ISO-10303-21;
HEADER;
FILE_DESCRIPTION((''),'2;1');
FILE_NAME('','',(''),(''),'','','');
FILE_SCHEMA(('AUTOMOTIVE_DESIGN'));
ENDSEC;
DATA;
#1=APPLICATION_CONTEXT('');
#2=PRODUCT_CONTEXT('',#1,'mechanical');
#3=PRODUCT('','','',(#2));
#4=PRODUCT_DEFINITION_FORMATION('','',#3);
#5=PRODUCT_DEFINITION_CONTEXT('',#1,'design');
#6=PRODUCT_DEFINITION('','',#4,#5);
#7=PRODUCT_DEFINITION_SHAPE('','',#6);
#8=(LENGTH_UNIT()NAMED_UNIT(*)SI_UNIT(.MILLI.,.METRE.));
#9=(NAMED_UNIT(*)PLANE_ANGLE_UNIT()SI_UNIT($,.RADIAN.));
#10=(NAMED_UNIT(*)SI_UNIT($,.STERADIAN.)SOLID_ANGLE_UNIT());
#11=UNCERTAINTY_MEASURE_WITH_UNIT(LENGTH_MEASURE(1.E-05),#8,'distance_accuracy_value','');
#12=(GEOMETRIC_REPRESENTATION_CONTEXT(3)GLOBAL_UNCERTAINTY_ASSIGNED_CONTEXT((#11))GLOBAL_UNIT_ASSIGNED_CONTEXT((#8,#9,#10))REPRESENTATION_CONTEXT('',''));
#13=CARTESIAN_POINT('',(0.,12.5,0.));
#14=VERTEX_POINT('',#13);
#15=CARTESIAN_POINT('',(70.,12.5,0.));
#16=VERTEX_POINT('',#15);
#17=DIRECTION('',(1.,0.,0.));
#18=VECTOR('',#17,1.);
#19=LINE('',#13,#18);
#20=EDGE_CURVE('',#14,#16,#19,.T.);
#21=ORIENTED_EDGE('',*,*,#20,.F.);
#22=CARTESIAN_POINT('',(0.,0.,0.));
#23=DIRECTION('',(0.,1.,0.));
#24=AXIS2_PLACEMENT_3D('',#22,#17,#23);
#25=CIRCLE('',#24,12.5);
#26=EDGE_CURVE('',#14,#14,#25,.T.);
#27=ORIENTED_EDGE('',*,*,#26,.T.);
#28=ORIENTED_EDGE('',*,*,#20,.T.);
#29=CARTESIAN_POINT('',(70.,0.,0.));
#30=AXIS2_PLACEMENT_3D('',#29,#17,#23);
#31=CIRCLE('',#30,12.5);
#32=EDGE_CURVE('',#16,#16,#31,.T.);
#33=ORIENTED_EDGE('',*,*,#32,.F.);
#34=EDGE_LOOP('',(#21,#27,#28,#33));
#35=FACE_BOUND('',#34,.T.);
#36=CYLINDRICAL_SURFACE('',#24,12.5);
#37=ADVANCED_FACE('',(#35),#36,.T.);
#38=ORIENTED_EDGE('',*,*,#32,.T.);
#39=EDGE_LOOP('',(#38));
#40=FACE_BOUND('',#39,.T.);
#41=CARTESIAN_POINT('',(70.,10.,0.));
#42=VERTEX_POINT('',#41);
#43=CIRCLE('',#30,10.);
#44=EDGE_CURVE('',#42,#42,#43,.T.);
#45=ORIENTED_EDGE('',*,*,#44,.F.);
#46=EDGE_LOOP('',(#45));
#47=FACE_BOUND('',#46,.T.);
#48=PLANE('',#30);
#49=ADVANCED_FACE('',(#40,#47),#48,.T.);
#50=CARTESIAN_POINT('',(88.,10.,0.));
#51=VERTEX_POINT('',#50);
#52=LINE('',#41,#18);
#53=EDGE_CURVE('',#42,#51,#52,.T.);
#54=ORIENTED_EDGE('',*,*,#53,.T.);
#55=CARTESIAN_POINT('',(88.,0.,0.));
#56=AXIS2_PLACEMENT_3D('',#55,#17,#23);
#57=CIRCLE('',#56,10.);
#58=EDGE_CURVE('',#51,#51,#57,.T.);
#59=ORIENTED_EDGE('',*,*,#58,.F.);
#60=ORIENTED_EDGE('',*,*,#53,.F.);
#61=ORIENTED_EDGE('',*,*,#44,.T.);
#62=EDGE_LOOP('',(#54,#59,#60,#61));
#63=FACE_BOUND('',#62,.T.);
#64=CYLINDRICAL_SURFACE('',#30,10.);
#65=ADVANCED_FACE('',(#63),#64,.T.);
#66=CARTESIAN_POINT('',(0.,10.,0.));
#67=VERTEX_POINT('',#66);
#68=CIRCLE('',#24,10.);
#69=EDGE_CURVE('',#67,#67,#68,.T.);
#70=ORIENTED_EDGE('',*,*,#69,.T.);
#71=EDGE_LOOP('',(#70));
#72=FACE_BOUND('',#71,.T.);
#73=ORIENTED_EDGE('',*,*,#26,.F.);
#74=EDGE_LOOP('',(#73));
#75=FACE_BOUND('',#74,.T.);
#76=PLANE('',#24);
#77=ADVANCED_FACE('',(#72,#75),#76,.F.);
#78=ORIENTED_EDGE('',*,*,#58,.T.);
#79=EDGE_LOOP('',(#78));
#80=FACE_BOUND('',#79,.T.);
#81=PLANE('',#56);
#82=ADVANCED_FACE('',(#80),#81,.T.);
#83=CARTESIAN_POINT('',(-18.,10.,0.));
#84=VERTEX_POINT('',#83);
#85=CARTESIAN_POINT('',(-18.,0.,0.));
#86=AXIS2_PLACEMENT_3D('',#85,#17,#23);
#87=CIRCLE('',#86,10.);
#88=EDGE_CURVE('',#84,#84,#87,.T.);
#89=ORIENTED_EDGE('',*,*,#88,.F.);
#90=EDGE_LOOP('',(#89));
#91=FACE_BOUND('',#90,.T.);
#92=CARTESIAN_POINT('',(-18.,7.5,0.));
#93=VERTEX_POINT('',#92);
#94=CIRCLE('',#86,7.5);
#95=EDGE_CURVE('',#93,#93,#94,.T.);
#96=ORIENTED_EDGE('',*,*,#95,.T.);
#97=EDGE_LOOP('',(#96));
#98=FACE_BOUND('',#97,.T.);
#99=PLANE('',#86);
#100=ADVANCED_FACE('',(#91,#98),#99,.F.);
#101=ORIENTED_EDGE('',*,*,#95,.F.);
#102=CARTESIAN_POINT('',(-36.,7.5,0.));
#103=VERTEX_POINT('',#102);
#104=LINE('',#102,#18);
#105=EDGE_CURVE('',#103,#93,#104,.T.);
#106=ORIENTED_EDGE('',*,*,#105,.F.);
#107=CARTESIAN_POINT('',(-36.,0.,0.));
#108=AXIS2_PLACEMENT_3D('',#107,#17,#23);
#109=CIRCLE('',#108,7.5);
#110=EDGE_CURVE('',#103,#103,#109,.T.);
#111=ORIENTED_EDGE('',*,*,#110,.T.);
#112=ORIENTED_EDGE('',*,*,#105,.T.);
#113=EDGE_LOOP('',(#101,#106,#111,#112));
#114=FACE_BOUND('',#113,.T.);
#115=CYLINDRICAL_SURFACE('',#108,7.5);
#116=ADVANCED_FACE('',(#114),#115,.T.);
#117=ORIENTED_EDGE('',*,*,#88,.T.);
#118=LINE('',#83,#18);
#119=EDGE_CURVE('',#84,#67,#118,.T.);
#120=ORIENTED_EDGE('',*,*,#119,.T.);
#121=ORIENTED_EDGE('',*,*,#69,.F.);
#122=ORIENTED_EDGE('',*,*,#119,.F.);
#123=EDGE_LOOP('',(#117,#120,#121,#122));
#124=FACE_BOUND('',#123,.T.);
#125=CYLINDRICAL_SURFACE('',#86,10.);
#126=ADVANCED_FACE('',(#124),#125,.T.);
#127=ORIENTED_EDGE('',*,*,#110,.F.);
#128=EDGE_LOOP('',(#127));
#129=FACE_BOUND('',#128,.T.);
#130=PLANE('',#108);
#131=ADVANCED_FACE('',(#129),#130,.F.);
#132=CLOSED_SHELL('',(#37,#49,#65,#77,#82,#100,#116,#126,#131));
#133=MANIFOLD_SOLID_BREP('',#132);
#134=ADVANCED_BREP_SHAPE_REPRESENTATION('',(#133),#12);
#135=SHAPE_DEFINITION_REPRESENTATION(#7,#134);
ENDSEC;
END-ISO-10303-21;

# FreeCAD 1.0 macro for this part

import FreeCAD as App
import Part
import Sketcher

V = App.Vector
Q = App.Units.Quantity

doc = App.newDocument("Part")
body = doc.addObject("PartDesign::Body", "Body")

# Sketch on XY plane
sketch1 = body.newObject("Sketcher::SketchObject", "Sketch")
sketch1.AttachmentSupport = (doc.getObject("XY_Plane"), [""])
sketch1.MapMode = "FlatFace"
sketch1.addGeometry(Part.LineSegment(V(-36, 7.5, 0), V(-36, 0, 0)), False)
sketch1.addGeometry(Part.LineSegment(V(-36, 0, 0), V(88, 0, 0)), False)
sketch1.addGeometry(Part.LineSegment(V(88, 0, 0), V(88, 10, 0)), False)
sketch1.addGeometry(Part.LineSegment(V(88, 10, 0), V(70, 10, 0)), False)
sketch1.addGeometry(Part.LineSegment(V(70, 10, 0), V(70, 12.5, 0)), False)
sketch1.addGeometry(Part.LineSegment(V(70, 12.5, 0), V(0, 12.5, 0)), False)
sketch1.addGeometry(Part.LineSegment(V(0, 12.5, 0), V(0, 10, 0)), False)
sketch1.addGeometry(Part.LineSegment(V(0, 10, 0), V(-18, 10, 0)), False)
sketch1.addGeometry(Part.LineSegment(V(-18, 10, 0), V(-18, 7.5, 0)), False)
sketch1.addGeometry(Part.LineSegment(V(-18, 7.5, 0), V(-36, 7.5, 0)), False)
sketch1.addConstraint(Sketcher.Constraint("Coincident", 0, 2, 1, 1))
sketch1.addConstraint(Sketcher.Constraint("Coincident", 1, 2, 2, 1))
sketch1.addConstraint(Sketcher.Constraint("Coincident", 2, 2, 3, 1))
sketch1.addConstraint(Sketcher.Constraint("Coincident", 3, 2, 4, 1))
sketch1.addConstraint(Sketcher.Constraint("Coincident", 4, 2, 5, 1))
sketch1.addConstraint(Sketcher.Constraint("Coincident", 5, 2, 6, 1))
sketch1.addConstraint(Sketcher.Constraint("Coincident", 6, 2, 7, 1))
sketch1.addConstraint(Sketcher.Constraint("Coincident", 7, 2, 8, 1))
sketch1.addConstraint(Sketcher.Constraint("Coincident", 8, 2, 9, 1))
sketch1.addConstraint(Sketcher.Constraint("Coincident", 9, 2, 0, 1))
sketch1.addConstraint(Sketcher.Constraint("Vertical", 0))
sketch1.addConstraint(Sketcher.Constraint("Horizontal", 1))
sketch1.addConstraint(Sketcher.Constraint("Vertical", 2))
sketch1.addConstraint(Sketcher.Constraint("Horizontal", 3))
sketch1.addConstraint(Sketcher.Constraint("Vertical", 4))
sketch1.addConstraint(Sketcher.Constraint("Horizontal", 5))
sketch1.addConstraint(Sketcher.Constraint("Vertical", 6))
sketch1.addConstraint(Sketcher.Constraint("Horizontal", 7))
sketch1.addConstraint(Sketcher.Constraint("Vertical", 8))
sketch1.addConstraint(Sketcher.Constraint("Horizontal", 9))
sketch1.addConstraint(Sketcher.Constraint("PointOnObject", 0, 2, -1))
sketch1.addConstraint(Sketcher.Constraint("PointOnObject", 5, 2, -2))
sketch1.addConstraint(Sketcher.Constraint("Horizontal", 3, 2, 6, 2))
sketch1.addConstraint(Sketcher.Constraint("Equal", 3, 7))
sketch1.addConstraint(Sketcher.Constraint("Equal", 7, 9))
sketch1.addConstraint(Sketcher.Constraint("Equal", 6, 8))
sketch1.addConstraint(Sketcher.Constraint("DistanceX", 1, 1, 1, 2, Q("124 mm")))
sketch1.addConstraint(Sketcher.Constraint("DistanceX", 3, 2, 3, 1, Q("18 mm")))
sketch1.addConstraint(Sketcher.Constraint("DistanceY", 2, 1, 2, 2, Q("10 mm")))
sketch1.addConstraint(Sketcher.Constraint("DistanceY", 0, 2, 0, 1, Q("7.5 mm")))
revolution = body.newObject("PartDesign::Revolution", "Revolution")
revolution.Profile = sketch1
revolution.ReferenceAxis = (sketch1, ["H_Axis"])
revolution.Angle = 360

doc.recompute()
